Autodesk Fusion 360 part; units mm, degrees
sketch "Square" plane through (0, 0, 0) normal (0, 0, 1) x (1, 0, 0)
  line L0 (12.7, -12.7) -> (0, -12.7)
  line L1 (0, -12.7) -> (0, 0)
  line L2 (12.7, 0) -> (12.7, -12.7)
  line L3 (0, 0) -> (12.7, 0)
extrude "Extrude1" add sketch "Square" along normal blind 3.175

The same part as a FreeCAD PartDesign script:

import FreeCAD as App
import Part
import Sketcher
from FreeCAD import Vector
Q = App.Units.Quantity

doc = App.newDocument("Part")
body = doc.addObject("PartDesign::Body", "Body")

# Sketch on XY plane
sketch1 = body.newObject("Sketcher::SketchObject", "Sketch")
sketch1.AttachmentSupport = (doc.getObject("XY_Plane"), [""])
sketch1.MapMode = "FlatFace"
sketch1.addGeometry(Part.LineSegment(Vector(0, -12.7, 0), Vector(12.7, -12.7, 0)), False)
sketch1.addGeometry(Part.LineSegment(Vector(12.7, -12.7, 0), Vector(12.7, 0, 0)), False)
sketch1.addGeometry(Part.LineSegment(Vector(12.7, 0, 0), Vector(0, 0, 0)), False)
sketch1.addGeometry(Part.LineSegment(Vector(0, 0, 0), Vector(0, -12.7, 0)), False)
sketch1.addConstraint(Sketcher.Constraint("Coincident", 0, 2, 1, 1))
sketch1.addConstraint(Sketcher.Constraint("Coincident", 1, 2, 2, 1))
sketch1.addConstraint(Sketcher.Constraint("Coincident", 2, 2, 3, 1))
sketch1.addConstraint(Sketcher.Constraint("Coincident", 3, 2, 0, 1))
sketch1.addConstraint(Sketcher.Constraint("Horizontal", 0))
sketch1.addConstraint(Sketcher.Constraint("Vertical", 1))
sketch1.addConstraint(Sketcher.Constraint("Horizontal", 2))
sketch1.addConstraint(Sketcher.Constraint("Vertical", 3))
sketch1.addConstraint(Sketcher.Constraint("Coincident", 2, 2, -1, 1))
sketch1.addConstraint(Sketcher.Constraint("Equal", 2, 1))
sketch1.addConstraint(Sketcher.Constraint("DistanceX", 0, 1, 0, 2, Q("0.5 in")))
pad1 = body.newObject("PartDesign::Pad", "Pad")
pad1.Profile = sketch1
pad1.Length = Q("0.125 in")

doc.recompute()
